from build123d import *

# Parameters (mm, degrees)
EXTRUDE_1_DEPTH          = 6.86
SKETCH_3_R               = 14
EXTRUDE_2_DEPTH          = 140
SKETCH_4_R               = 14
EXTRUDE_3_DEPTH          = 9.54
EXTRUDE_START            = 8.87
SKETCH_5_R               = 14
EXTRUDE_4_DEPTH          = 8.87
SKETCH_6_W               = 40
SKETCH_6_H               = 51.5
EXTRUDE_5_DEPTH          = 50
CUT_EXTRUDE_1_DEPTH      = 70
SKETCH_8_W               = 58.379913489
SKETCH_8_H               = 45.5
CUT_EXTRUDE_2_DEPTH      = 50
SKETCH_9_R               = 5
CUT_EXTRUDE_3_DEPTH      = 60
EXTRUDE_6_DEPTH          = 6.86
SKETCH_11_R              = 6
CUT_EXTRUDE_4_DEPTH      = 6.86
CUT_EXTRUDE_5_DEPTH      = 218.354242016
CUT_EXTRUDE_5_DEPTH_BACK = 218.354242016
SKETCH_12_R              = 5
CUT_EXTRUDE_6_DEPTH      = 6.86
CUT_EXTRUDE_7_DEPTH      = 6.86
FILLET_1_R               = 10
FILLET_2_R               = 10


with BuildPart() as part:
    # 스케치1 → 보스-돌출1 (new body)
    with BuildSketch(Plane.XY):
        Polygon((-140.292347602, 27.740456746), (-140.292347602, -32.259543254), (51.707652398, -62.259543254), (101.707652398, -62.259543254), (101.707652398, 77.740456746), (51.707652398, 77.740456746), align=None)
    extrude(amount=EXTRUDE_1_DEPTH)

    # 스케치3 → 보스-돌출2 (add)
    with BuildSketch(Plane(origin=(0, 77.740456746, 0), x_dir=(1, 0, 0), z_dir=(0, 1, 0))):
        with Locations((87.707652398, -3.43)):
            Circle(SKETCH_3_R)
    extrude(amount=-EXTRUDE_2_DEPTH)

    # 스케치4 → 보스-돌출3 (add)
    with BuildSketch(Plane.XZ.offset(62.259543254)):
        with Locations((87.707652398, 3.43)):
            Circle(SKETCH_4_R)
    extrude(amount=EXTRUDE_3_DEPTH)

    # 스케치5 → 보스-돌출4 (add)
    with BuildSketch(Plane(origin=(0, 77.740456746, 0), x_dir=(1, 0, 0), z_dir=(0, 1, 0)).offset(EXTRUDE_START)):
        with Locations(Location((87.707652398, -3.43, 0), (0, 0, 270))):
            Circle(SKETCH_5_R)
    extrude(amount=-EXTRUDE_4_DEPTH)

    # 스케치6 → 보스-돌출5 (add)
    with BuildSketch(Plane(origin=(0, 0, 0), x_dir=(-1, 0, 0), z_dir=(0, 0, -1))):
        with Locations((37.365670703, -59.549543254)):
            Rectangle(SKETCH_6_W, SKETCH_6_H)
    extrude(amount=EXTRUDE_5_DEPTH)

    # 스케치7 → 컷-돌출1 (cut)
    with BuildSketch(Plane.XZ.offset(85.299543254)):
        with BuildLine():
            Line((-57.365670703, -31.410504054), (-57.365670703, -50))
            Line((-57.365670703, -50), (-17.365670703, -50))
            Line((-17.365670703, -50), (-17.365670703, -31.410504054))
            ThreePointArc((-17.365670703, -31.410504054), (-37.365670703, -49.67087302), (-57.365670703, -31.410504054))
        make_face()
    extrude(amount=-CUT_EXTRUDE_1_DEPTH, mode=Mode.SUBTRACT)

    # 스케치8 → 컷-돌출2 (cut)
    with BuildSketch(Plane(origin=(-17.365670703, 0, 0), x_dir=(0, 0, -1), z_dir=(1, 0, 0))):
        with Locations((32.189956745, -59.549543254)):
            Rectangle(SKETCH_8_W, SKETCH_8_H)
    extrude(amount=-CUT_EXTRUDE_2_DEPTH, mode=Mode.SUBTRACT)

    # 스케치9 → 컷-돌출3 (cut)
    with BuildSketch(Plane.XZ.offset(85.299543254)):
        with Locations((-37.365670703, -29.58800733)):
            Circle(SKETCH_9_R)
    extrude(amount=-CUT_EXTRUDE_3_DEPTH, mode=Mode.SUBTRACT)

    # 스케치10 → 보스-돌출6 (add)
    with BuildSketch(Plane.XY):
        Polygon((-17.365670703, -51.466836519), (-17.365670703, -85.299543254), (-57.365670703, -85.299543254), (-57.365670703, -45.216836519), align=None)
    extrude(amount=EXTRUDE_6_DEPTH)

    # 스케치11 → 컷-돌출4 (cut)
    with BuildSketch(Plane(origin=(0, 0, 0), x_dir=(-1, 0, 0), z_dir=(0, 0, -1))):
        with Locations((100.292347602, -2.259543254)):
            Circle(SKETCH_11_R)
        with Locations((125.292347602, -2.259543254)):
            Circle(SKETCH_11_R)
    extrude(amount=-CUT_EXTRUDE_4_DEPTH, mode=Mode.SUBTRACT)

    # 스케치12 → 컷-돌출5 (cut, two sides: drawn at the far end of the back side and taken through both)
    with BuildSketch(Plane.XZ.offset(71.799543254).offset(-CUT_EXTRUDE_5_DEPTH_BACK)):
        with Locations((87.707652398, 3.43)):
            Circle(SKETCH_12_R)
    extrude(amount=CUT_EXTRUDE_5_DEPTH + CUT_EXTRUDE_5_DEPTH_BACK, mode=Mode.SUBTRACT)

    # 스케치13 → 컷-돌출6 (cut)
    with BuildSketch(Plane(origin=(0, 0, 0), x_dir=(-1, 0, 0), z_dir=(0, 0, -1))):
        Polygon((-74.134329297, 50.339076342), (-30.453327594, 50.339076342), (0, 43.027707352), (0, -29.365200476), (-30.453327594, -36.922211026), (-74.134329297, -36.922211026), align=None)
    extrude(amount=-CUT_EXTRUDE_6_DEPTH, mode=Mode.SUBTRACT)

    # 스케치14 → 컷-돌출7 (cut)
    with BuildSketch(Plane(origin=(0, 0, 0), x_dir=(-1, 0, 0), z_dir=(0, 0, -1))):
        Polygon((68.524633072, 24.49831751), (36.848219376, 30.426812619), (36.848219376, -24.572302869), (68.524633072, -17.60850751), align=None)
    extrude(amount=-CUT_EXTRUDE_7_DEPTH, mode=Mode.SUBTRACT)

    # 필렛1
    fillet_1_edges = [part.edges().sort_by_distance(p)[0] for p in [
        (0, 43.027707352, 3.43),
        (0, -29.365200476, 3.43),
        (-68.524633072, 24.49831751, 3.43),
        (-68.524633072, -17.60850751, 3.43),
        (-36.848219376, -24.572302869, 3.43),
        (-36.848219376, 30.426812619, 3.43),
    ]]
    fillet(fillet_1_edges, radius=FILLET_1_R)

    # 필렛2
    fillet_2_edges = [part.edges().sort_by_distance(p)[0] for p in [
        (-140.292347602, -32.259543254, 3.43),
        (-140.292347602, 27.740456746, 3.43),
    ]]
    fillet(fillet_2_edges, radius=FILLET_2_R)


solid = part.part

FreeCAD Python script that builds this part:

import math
import FreeCAD as App
import Part
import Sketcher
from FreeCAD import Vector
Q = App.Units.Quantity


def edges_at(feature, points):
    """Names of the edges that pass closest to the given points."""
    edges = feature.Shape.Edges
    near = lambda p: min(range(len(edges)), key=lambda i: edges[i].distToShape(Part.Vertex(*p))[0])
    return sorted({f"Edge{near(p) + 1}" for p in points})


def add_polygon(sketch, points):
    """Adds a closed chain of lines whose ends are joined by coincident constraints."""
    first, n = sketch.GeometryCount, len(points)
    for a, b in zip(points, points[1:] + points[:1]):
        sketch.addGeometry(Part.LineSegment(App.Vector(*a, 0), App.Vector(*b, 0)), False)
    for i in range(n):
        sketch.addConstraint(Sketcher.Constraint("Coincident", first + i, 2, first + (i + 1) % n, 1))

doc = App.newDocument("Part")
body = doc.addObject("PartDesign::Body", "Body")

sketch1 = body.newObject("Sketcher::SketchObject", "Sketch")
sketch1.AttachmentSupport = (doc.getObject("XY_Plane"), [""])
sketch1.MapMode = "FlatFace"
add_polygon(sketch1, [(-140, 28), (-140, -32), (52, -62), (102, -62), (102, 78), (52, 78)])
sketch1.addConstraint(Sketcher.Constraint("Vertical", 0))
sketch1.addConstraint(Sketcher.Constraint("Horizontal", 2))
sketch1.addConstraint(Sketcher.Constraint("Vertical", 3))
sketch1.addConstraint(Sketcher.Constraint("Horizontal", 4))
sketch1.addConstraint(Sketcher.Constraint("Vertical", 1, 2, 4, 2))
sketch1.addConstraint(Sketcher.Constraint("DistanceX", 2, 1, 2, 2, Q("50 mm")))
sketch1.addConstraint(Sketcher.Constraint("DistanceY", 0, 2, 0, 1, Q("60 mm")))
sketch1.addConstraint(Sketcher.Constraint("DistanceY", 3, 1, 3, 2, Q("140 mm")))
sketch1.addConstraint(Sketcher.Constraint("DistanceX", 0, 2, 1, 2, Q("192 mm")))
sketch1.addConstraint(Sketcher.Constraint("DistanceY", 1, 2, 0, 2, Q("30 mm")))
sketch1.addConstraint(Sketcher.Constraint("DistanceX", 0, 2, -1, 1, Q("140.292348 mm")))
sketch1.addConstraint(Sketcher.Constraint("DistanceY", 0, 2, -1, 1, Q("32.259543 mm")))
pad1 = body.newObject("PartDesign::Pad", "Pad")
pad1.Profile = sketch1
pad1.Length = 6.86

sketch2 = body.newObject("Sketcher::SketchObject", "Sketch001")
sketch2.AttachmentSupport = (doc.getObject("XZ_Plane"), [""])
sketch2.MapMode = "FlatFace"
sketch2.AttachmentOffset = App.Placement(Vector(0, 0, -77.740457), App.Rotation())
sketch2.addGeometry(Part.Circle(Vector(88, 3, 0), Vector(0, 0, 1), 14), False)
sketch2.addConstraint(Sketcher.Constraint("Diameter", 0, Q("28 mm")))
sketch2.addConstraint(Sketcher.Constraint("DistanceY", -1, 1, 0, 3, Q("3.43 mm")))
sketch2.addConstraint(Sketcher.Constraint("DistanceX", -1, 1, 0, 3, Q("87.707652 mm")))
pad2 = body.newObject("PartDesign::Pad", "Pad001")
pad2.Profile = sketch2
pad2.Length = 140

sketch3 = body.newObject("Sketcher::SketchObject", "Sketch002")
sketch3.AttachmentSupport = (doc.getObject("XZ_Plane"), [""])
sketch3.MapMode = "FlatFace"
sketch3.AttachmentOffset = App.Placement(Vector(0, 0, 62.259543), App.Rotation())
sketch3.addGeometry(Part.Circle(Vector(88, 3, 0), Vector(0, 0, 1), 14), False)
sketch3.addConstraint(Sketcher.Constraint("Diameter", 0, Q("28 mm")))
sketch3.addConstraint(Sketcher.Constraint("DistanceY", -1, 1, 0, 3, Q("3.43 mm")))
sketch3.addConstraint(Sketcher.Constraint("DistanceX", -1, 1, 0, 3, Q("87.707652 mm")))
pad3 = body.newObject("PartDesign::Pad", "Pad002")
pad3.Profile = sketch3
pad3.Length = 9.54

sketch4 = body.newObject("Sketcher::SketchObject", "Sketch003")
sketch4.AttachmentSupport = (doc.getObject("XZ_Plane"), [""])
sketch4.MapMode = "FlatFace"
sketch4.AttachmentOffset = App.Placement(Vector(0, 0, -86.610457), App.Rotation())
sketch4.addGeometry(Part.Circle(Vector(88, 3, 0), Vector(0, 0, 1), 14), False)
sketch4.addConstraint(Sketcher.Constraint("Diameter", 0, Q("28 mm")))
sketch4.addConstraint(Sketcher.Constraint("DistanceY", -1, 1, 0, 3, Q("3.43 mm")))
sketch4.addConstraint(Sketcher.Constraint("DistanceX", -1, 1, 0, 3, Q("87.707652 mm")))
pad4 = body.newObject("PartDesign::Pad", "Pad003")
pad4.Profile = sketch4
pad4.Length = 8.87

sketch5 = body.newObject("Sketcher::SketchObject", "Sketch004")
sketch5.AttachmentSupport = (doc.getObject("XY_Plane"), [""])
sketch5.MapMode = "FlatFace"
add_polygon(sketch5, [(-17, -34), (-17, -85), (-57, -85), (-57, -34)])
sketch5.addConstraint(Sketcher.Constraint("Vertical", 0))
sketch5.addConstraint(Sketcher.Constraint("Horizontal", 1))
sketch5.addConstraint(Sketcher.Constraint("Vertical", 2))
sketch5.addConstraint(Sketcher.Constraint("Horizontal", 3))
sketch5.addConstraint(Sketcher.Constraint("DistanceX", 1, 2, 1, 1, Q("40 mm")))
sketch5.addConstraint(Sketcher.Constraint("DistanceY", 0, 2, 0, 1, Q("51.5 mm")))
sketch5.addConstraint(Sketcher.Constraint("DistanceX", 0, 2, -1, 1, Q("17.365671 mm")))
sketch5.addConstraint(Sketcher.Constraint("DistanceY", 0, 2, -1, 1, Q("85.299543 mm")))
pad5 = body.newObject("PartDesign::Pad", "Pad004")
pad5.Profile = sketch5
pad5.Length = 50
pad5.Reversed = True

sketch6 = body.newObject("Sketcher::SketchObject", "Sketch005")
sketch6.AttachmentSupport = (doc.getObject("XZ_Plane"), [""])
sketch6.MapMode = "FlatFace"
sketch6.AttachmentOffset = App.Placement(Vector(0, 0, 85.299543), App.Rotation())
sketch6.addGeometry(Part.LineSegment(Vector(-57, -31, 0), Vector(-57, -50, 0)), False)
sketch6.addGeometry(Part.LineSegment(Vector(-57, -50, 0), Vector(-17, -50, 0)), False)
sketch6.addGeometry(Part.LineSegment(Vector(-17, -50, 0), Vector(-17, -31, 0)), False)
sketch6.addGeometry(Part.ArcOfCircle(Part.Circle(Vector(-37, -30, 0), Vector(0, 0, 1), 20), math.radians(-175), math.radians(-5)), False)
sketch6.addConstraint(Sketcher.Constraint("Coincident", 0, 2, 1, 1))
sketch6.addConstraint(Sketcher.Constraint("Coincident", 1, 2, 2, 1))
sketch6.addConstraint(Sketcher.Constraint("Coincident", 2, 2, 3, 2))
sketch6.addConstraint(Sketcher.Constraint("Coincident", 3, 1, 0, 1))
sketch6.addConstraint(Sketcher.Constraint("Vertical", 0))
sketch6.addConstraint(Sketcher.Constraint("Horizontal", 1))
sketch6.addConstraint(Sketcher.Constraint("Vertical", 2))
sketch6.addConstraint(Sketcher.Constraint("Horizontal", 2, 2, 3, 1))
sketch6.addConstraint(Sketcher.Constraint("DistanceX", 1, 1, 1, 2, Q("40 mm")))
sketch6.addConstraint(Sketcher.Constraint("DistanceY", 0, 2, -1, 1, Q("50 mm")))
sketch6.addConstraint(Sketcher.Constraint("Radius", 3, Q("20.082866 mm")))
sketch6.addConstraint(Sketcher.Constraint("DistanceY", 0, 2, 0, 1, Q("18.589496 mm")))
sketch6.addConstraint(Sketcher.Constraint("DistanceX", 3, 3, -1, 1, Q("37.365671 mm")))
pocket1 = body.newObject("PartDesign::Pocket", "Pocket")
pocket1.Profile = sketch6
pocket1.Length = 70

sketch7 = body.newObject("Sketcher::SketchObject", "Sketch006")
sketch7.AttachmentSupport = (doc.getObject("YZ_Plane"), [""])
sketch7.MapMode = "FlatFace"
sketch7.AttachmentOffset = App.Placement(Vector(0, 0, -17.365671), App.Rotation())
add_polygon(sketch7, [(-37, -3), (-82, -3), (-82, -61), (-37, -61)])
sketch7.addConstraint(Sketcher.Constraint("Horizontal", 0))
sketch7.addConstraint(Sketcher.Constraint("Vertical", 1))
sketch7.addConstraint(Sketcher.Constraint("Horizontal", 2))
sketch7.addConstraint(Sketcher.Constraint("Vertical", 3))
sketch7.addConstraint(Sketcher.Constraint("DistanceX", 0, 2, 0, 1, Q("45.5 mm")))
sketch7.addConstraint(Sketcher.Constraint("DistanceY", 0, 2, -1, 1, Q("3 mm")))
sketch7.addConstraint(Sketcher.Constraint("DistanceY", 1, 2, 1, 1, Q("58.379913 mm")))
sketch7.addConstraint(Sketcher.Constraint("DistanceX", 0, 2, -1, 1, Q("82.299543 mm")))
pocket2 = body.newObject("PartDesign::Pocket", "Pocket001")
pocket2.Profile = sketch7
pocket2.Length = 50

sketch8 = body.newObject("Sketcher::SketchObject", "Sketch007")
sketch8.AttachmentSupport = (doc.getObject("XZ_Plane"), [""])
sketch8.MapMode = "FlatFace"
sketch8.AttachmentOffset = App.Placement(Vector(0, 0, 85.299543), App.Rotation())
sketch8.addGeometry(Part.Circle(Vector(-37, -30, 0), Vector(0, 0, 1), 5), False)
sketch8.addConstraint(Sketcher.Constraint("Diameter", 0, Q("10 mm")))
sketch8.addConstraint(Sketcher.Constraint("DistanceX", 0, 3, -1, 1, Q("37.365671 mm")))
sketch8.addConstraint(Sketcher.Constraint("DistanceY", 0, 3, -1, 1, Q("29.588007 mm")))
pocket3 = body.newObject("PartDesign::Pocket", "Pocket002")
pocket3.Profile = sketch8
pocket3.Length = 60

sketch9 = body.newObject("Sketcher::SketchObject", "Sketch008")
sketch9.AttachmentSupport = (doc.getObject("XY_Plane"), [""])
sketch9.MapMode = "FlatFace"
add_polygon(sketch9, [(-17, -85), (-17, -51), (-57, -45), (-57, -85)])
sketch9.addConstraint(Sketcher.Constraint("Vertical", 0))
sketch9.addConstraint(Sketcher.Constraint("Vertical", 2))
sketch9.addConstraint(Sketcher.Constraint("Horizontal", 3))
sketch9.addConstraint(Sketcher.Constraint("DistanceX", 3, 1, 3, 2, Q("40 mm")))
sketch9.addConstraint(Sketcher.Constraint("DistanceY", 0, 2, 1, 2, Q("6.25 mm")))
sketch9.addConstraint(Sketcher.Constraint("DistanceY", 0, 1, 0, 2, Q("33.832707 mm")))
sketch9.addConstraint(Sketcher.Constraint("DistanceX", 0, 2, -1, 1, Q("17.365671 mm")))
sketch9.addConstraint(Sketcher.Constraint("DistanceY", 0, 2, -1, 1, Q("51.466837 mm")))
pad6 = body.newObject("PartDesign::Pad", "Pad005")
pad6.Profile = sketch9
pad6.Length = 6.86

sketch10 = body.newObject("Sketcher::SketchObject", "Sketch009")
sketch10.AttachmentSupport = (doc.getObject("XY_Plane"), [""])
sketch10.MapMode = "FlatFace"
sketch10.addGeometry(Part.Circle(Vector(-100, -2, 0), Vector(0, 0, 1), 6), False)
sketch10.addGeometry(Part.Circle(Vector(-125, -2, 0), Vector(0, 0, 1), 6), False)
sketch10.addConstraint(Sketcher.Constraint("Equal", 0, 1))
sketch10.addConstraint(Sketcher.Constraint("Horizontal", 0, 3, 1, 3))
sketch10.addConstraint(Sketcher.Constraint("Diameter", 0, Q("12 mm")))
sketch10.addConstraint(Sketcher.Constraint("DistanceX", 1, 3, 0, 3, Q("25 mm")))
sketch10.addConstraint(Sketcher.Constraint("DistanceX", 0, 3, -1, 1, Q("100.292348 mm")))
sketch10.addConstraint(Sketcher.Constraint("DistanceY", 0, 3, -1, 1, Q("2.259543 mm")))
pocket4 = body.newObject("PartDesign::Pocket", "Pocket003")
pocket4.Profile = sketch10
pocket4.Length = 6.86
pocket4.Reversed = True

sketch11 = body.newObject("Sketcher::SketchObject", "Sketch010")
sketch11.AttachmentSupport = (doc.getObject("XZ_Plane"), [""])
sketch11.MapMode = "FlatFace"
sketch11.AttachmentOffset = App.Placement(Vector(0, 0, 71.799543), App.Rotation())
sketch11.addGeometry(Part.Circle(Vector(88, 3, 0), Vector(0, 0, 1), 5), False)
sketch11.addConstraint(Sketcher.Constraint("Diameter", 0, Q("10 mm")))
sketch11.addConstraint(Sketcher.Constraint("DistanceY", -1, 1, 0, 3, Q("3.43 mm")))
sketch11.addConstraint(Sketcher.Constraint("DistanceX", -1, 1, 0, 3, Q("87.707652 mm")))
pocket5 = body.newObject("PartDesign::Pocket", "Pocket004")
pocket5.Profile = sketch11
pocket5.Type = "ThroughAll"
pocket5.Midplane = True

sketch12 = body.newObject("Sketcher::SketchObject", "Sketch011")
sketch12.AttachmentSupport = (doc.getObject("XY_Plane"), [""])
sketch12.MapMode = "FlatFace"
add_polygon(sketch12, [(30, 50), (74, 50), (74, -37), (30, -37), (0, -29), (0, 43)])
sketch12.addConstraint(Sketcher.Constraint("Horizontal", 0))
sketch12.addConstraint(Sketcher.Constraint("Vertical", 1))
sketch12.addConstraint(Sketcher.Constraint("Horizontal", 2))
sketch12.addConstraint(Sketcher.Constraint("Vertical", 4))
sketch12.addConstraint(Sketcher.Constraint("PointOnObject", 3, 2, -2))
sketch12.addConstraint(Sketcher.Constraint("Vertical", 2, 2, 5, 2))
sketch12.addConstraint(Sketcher.Constraint("DistanceX", 0, 1, 0, 2, Q("43.681002 mm")))
sketch12.addConstraint(Sketcher.Constraint("DistanceY", 3, 2, -1, 1, Q("29.3652 mm")))
sketch12.addConstraint(Sketcher.Constraint("Distance", 3, Q("31.376959 mm")))
sketch12.addConstraint(Sketcher.Constraint("DistanceY", 1, 2, 1, 1, Q("87.261287 mm")))
sketch12.addConstraint(Sketcher.Constraint("DistanceY", 4, 1, 4, 2, Q("72.392908 mm")))
sketch12.addConstraint(Sketcher.Constraint("DistanceX", -1, 1, 0, 2, Q("74.134329 mm")))
pocket6 = body.newObject("PartDesign::Pocket", "Pocket005")
pocket6.Profile = sketch12
pocket6.Length = 6.86
pocket6.Reversed = True

sketch13 = body.newObject("Sketcher::SketchObject", "Sketch012")
sketch13.AttachmentSupport = (doc.getObject("XY_Plane"), [""])
sketch13.MapMode = "FlatFace"
add_polygon(sketch13, [(-69, 24), (-37, 30), (-37, -25), (-69, -18)])
sketch13.addConstraint(Sketcher.Constraint("Vertical", 1))
sketch13.addConstraint(Sketcher.Constraint("Vertical", 3))
sketch13.addConstraint(Sketcher.Constraint("Distance", 0, Q("32.226421 mm")))
sketch13.addConstraint(Sketcher.Constraint("Distance", 2, Q("32.432848 mm")))
sketch13.addConstraint(Sketcher.Constraint("DistanceY", 1, 2, 1, 1, Q("54.999115 mm")))
sketch13.addConstraint(Sketcher.Constraint("DistanceY", 3, 1, 3, 2, Q("42.106825 mm")))
sketch13.addConstraint(Sketcher.Constraint("DistanceX", 0, 2, -1, 1, Q("36.848219 mm")))
sketch13.addConstraint(Sketcher.Constraint("DistanceY", -1, 1, 0, 2, Q("30.426813 mm")))
pocket7 = body.newObject("PartDesign::Pocket", "Pocket006")
pocket7.Profile = sketch13
pocket7.Length = 6.86
pocket7.Reversed = True
doc.recompute()

fillet = body.newObject("PartDesign::Fillet", "Fillet")
fillet.Base = (pocket7, edges_at(pocket7, [
    (0, 43.028, 3.43),
    (0, -29.365, 3.43),
    (-68.525, 24.498, 3.43),
    (-68.525, -17.609, 3.43),
    (-36.848, -24.572, 3.43),
    (-36.848, 30.427, 3.43),
]))
fillet.Radius = 10
doc.recompute()

fillet2 = body.newObject("PartDesign::Fillet", "Fillet001")
fillet2.Base = (fillet, edges_at(fillet, [(-140.292, -32.26, 3.43), (-140.292, 27.74, 3.43)]))
fillet2.Radius = 10

doc.recompute()
